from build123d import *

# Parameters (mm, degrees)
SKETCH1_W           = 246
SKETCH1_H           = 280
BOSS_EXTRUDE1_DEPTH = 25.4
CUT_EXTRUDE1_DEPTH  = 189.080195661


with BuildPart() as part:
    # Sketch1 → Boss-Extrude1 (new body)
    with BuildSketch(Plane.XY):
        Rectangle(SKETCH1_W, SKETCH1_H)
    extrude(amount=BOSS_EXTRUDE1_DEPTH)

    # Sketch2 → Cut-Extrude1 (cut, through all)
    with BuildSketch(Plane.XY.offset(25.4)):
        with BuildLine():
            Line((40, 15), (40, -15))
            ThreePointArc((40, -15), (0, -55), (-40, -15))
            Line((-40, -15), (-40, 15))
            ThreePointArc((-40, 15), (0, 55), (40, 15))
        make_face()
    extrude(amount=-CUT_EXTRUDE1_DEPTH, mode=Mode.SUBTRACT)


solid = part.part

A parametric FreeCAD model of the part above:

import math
import FreeCAD as App
import Part
import Sketcher


def add_polygon(sketch, points):
    """Adds a closed chain of lines whose ends are joined by coincident constraints."""
    first, n = sketch.GeometryCount, len(points)
    for a, b in zip(points, points[1:] + points[:1]):
        sketch.addGeometry(Part.LineSegment(App.Vector(*a, 0), App.Vector(*b, 0)), False)
    for i in range(n):
        sketch.addConstraint(Sketcher.Constraint("Coincident", first + i, 2, first + (i + 1) % n, 1))

doc = App.newDocument("Part")
body = doc.addObject("PartDesign::Body", "Body")

sketch1 = body.newObject("Sketcher::SketchObject", "Sketch")
sketch1.AttachmentSupport = (doc.getObject("XY_Plane"), [""])
sketch1.MapMode = "FlatFace"
add_polygon(sketch1, [(-123, 140), (-123, -140), (123, -140), (123, 140)])
sketch1.addConstraint(Sketcher.Constraint("Vertical", 0))
sketch1.addConstraint(Sketcher.Constraint("Horizontal", 1))
sketch1.addConstraint(Sketcher.Constraint("Vertical", 2))
sketch1.addConstraint(Sketcher.Constraint("Horizontal", 3))
sketch1.addConstraint(Sketcher.Constraint("Symmetric", 0, 2, 2, 2, -1, 1))
sketch1.addConstraint(Sketcher.Constraint("DistanceX", 1, 1, 1, 2, 246.0))
sketch1.addConstraint(Sketcher.Constraint("DistanceY", 0, 2, 0, 1, 280.0))
pad1 = body.newObject("PartDesign::Pad", "Pad")
pad1.Profile = sketch1
pad1.Length = 25.4

sketch2 = body.newObject("Sketcher::SketchObject", "Sketch001")
sketch2.AttachmentSupport = (doc.getObject("XY_Plane"), [""])
sketch2.MapMode = "FlatFace"
sketch2.AttachmentOffset = App.Placement(App.Vector(0, 0, 25.4), App.Rotation())
sketch2.addGeometry(Part.LineSegment(App.Vector(40, -15, 0), App.Vector(40, 15, 0)), False)
sketch2.addGeometry(Part.ArcOfCircle(Part.Circle(App.Vector(0, 15, 0), App.Vector(0, 0, 1), 40), math.radians(0), math.radians(180)), False)
sketch2.addGeometry(Part.LineSegment(App.Vector(-40, 15, 0), App.Vector(-40, -15, 0)), False)
sketch2.addGeometry(Part.ArcOfCircle(Part.Circle(App.Vector(0, -15, 0), App.Vector(0, 0, 1), 40), math.radians(180), math.radians(360)), False)
sketch2.addConstraint(Sketcher.Constraint("Tangent", 0, 2, 1, 1))
sketch2.addConstraint(Sketcher.Constraint("Tangent", 1, 2, 2, 1))
sketch2.addConstraint(Sketcher.Constraint("Tangent", 2, 2, 3, 1))
sketch2.addConstraint(Sketcher.Constraint("Tangent", 3, 2, 0, 1))
sketch2.addConstraint(Sketcher.Constraint("Vertical", 0))
sketch2.addConstraint(Sketcher.Constraint("Vertical", 2))
sketch2.addConstraint(Sketcher.Constraint("Symmetric", 1, 3, 3, 3, -1, 1))
sketch2.addConstraint(Sketcher.Constraint("Radius", 1, 40.0))
sketch2.addConstraint(Sketcher.Constraint("DistanceY", 0, 1, 0, 2, 30.0))
pocket1 = body.newObject("PartDesign::Pocket", "Pocket")
pocket1.Profile = sketch2
pocket1.Type = "ThroughAll"

doc.recompute()
